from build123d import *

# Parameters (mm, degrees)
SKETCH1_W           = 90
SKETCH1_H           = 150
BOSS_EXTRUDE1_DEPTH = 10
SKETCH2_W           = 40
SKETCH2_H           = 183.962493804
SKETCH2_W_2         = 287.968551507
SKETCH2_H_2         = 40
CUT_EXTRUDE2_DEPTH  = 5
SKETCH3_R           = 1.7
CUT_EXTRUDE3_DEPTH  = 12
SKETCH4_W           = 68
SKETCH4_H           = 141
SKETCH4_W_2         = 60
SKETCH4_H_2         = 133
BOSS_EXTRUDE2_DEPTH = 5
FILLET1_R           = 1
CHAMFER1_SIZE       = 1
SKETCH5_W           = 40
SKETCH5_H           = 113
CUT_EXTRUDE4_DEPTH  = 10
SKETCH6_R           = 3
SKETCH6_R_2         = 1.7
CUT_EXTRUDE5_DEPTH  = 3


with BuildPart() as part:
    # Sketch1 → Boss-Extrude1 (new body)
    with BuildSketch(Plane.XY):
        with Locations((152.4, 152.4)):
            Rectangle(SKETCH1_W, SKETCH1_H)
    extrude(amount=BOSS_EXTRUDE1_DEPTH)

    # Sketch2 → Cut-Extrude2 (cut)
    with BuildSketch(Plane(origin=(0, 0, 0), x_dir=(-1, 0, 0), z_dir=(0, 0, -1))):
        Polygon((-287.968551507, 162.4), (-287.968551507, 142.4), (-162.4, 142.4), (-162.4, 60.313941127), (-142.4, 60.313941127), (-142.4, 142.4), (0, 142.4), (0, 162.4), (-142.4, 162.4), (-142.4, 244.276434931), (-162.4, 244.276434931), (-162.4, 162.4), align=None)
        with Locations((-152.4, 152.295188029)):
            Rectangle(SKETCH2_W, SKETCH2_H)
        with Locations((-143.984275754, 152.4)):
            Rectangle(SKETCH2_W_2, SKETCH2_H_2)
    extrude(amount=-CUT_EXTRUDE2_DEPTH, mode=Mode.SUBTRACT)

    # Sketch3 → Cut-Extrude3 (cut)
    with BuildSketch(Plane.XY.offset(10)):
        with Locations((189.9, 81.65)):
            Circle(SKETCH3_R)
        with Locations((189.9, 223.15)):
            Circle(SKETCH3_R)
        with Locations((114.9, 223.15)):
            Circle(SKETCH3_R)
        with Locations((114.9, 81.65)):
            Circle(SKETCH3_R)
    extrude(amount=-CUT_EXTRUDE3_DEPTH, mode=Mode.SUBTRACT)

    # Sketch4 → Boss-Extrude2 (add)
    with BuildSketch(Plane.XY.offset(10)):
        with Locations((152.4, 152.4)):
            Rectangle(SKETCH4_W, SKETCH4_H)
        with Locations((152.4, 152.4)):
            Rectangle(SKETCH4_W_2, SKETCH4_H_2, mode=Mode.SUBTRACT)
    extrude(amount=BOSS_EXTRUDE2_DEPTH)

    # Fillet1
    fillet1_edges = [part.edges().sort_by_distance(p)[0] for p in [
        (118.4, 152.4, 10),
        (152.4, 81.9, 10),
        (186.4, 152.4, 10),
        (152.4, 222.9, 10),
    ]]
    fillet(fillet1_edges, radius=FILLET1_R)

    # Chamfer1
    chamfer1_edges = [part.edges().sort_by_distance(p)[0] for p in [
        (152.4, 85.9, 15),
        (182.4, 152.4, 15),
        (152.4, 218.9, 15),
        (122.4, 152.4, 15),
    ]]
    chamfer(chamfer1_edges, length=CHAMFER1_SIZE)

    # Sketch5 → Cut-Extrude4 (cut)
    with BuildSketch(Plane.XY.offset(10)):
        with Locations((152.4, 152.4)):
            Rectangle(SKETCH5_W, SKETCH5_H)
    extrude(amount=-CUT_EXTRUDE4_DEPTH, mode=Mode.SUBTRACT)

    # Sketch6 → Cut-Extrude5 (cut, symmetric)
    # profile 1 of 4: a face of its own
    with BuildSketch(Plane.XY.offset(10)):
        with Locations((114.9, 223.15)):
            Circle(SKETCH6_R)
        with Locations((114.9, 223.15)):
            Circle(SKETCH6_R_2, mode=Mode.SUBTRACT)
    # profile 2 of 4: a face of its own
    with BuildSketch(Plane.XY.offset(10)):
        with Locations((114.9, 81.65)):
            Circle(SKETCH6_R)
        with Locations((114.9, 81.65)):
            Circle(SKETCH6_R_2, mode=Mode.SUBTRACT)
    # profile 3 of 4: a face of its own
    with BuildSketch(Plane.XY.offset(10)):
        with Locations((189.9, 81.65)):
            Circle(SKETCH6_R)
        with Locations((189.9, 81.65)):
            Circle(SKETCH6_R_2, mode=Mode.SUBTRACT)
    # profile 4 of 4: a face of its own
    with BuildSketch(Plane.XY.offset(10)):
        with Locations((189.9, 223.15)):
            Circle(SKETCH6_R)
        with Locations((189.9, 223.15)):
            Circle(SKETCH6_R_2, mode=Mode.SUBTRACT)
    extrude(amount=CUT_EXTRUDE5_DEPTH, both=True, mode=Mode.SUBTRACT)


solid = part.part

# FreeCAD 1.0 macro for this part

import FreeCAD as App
import Part
import Sketcher
Q = App.Units.Quantity


def edges_at(feature, points):
    """Names of the edges that pass closest to the given points."""
    edges = feature.Shape.Edges
    near = lambda p: min(range(len(edges)), key=lambda i: edges[i].distToShape(Part.Vertex(*p))[0])
    return sorted({f"Edge{near(p) + 1}" for p in points})

doc = App.newDocument("Part")
body = doc.addObject("PartDesign::Body", "Body")

# Sketch on XY plane
sketch1 = body.newObject("Sketcher::SketchObject", "Sketch")
sketch1.AttachmentSupport = (doc.getObject("XY_Plane"), [""])
sketch1.MapMode = "FlatFace"
sketch1.addGeometry([
    Part.LineSegment(App.Vector(107, 227, 0), App.Vector(107, 77, 0)),
    Part.LineSegment(App.Vector(107, 77, 0), App.Vector(197, 77, 0)),
    Part.LineSegment(App.Vector(197, 77, 0), App.Vector(197, 227, 0)),
    Part.LineSegment(App.Vector(197, 227, 0), App.Vector(107, 227, 0)),
], False)
sketch1.addConstraint([
    Sketcher.Constraint("Coincident", 0, 2, 1, 1),
    Sketcher.Constraint("Coincident", 1, 2, 2, 1),
    Sketcher.Constraint("Coincident", 2, 2, 3, 1),
    Sketcher.Constraint("Coincident", 3, 2, 0, 1),
    Sketcher.Constraint("Vertical", 0),
    Sketcher.Constraint("Horizontal", 1),
    Sketcher.Constraint("Vertical", 2),
    Sketcher.Constraint("Horizontal", 3),
    Sketcher.Constraint("DistanceX", 1, 1, 1, 2, Q("90 mm")),
    Sketcher.Constraint("DistanceY", 0, 2, 0, 1, Q("150 mm")),
    Sketcher.Constraint("DistanceX", -1, 1, 0, 2, Q("107.4 mm")),
    Sketcher.Constraint("DistanceY", -1, 1, 0, 2, Q("77.4 mm")),
])
pad1 = body.newObject("PartDesign::Pad", "Pad")
pad1.Profile = sketch1
pad1.Length = 10

# Sketch on XY plane
sketch2 = body.newObject("Sketcher::SketchObject", "Sketch001")
sketch2.AttachmentSupport = (doc.getObject("XY_Plane"), [""])
sketch2.MapMode = "FlatFace"
sketch2.addGeometry([
    Part.LineSegment(App.Vector(0, 142, 0), App.Vector(0, 172, 0)),  # 0
    Part.LineSegment(App.Vector(0, 172, 0), App.Vector(132, 172, 0)),  # 1
    Part.LineSegment(App.Vector(132, 172, 0), App.Vector(132, 244, 0)),  # 2
    Part.LineSegment(App.Vector(132, 244, 0), App.Vector(172, 244, 0)),  # 3
    Part.LineSegment(App.Vector(172, 244, 0), App.Vector(172, 172, 0)),  # 4
    Part.LineSegment(App.Vector(172, 172, 0), App.Vector(288, 172, 0)),  # 5
    Part.LineSegment(App.Vector(288, 172, 0), App.Vector(288, 162, 0)),  # 6
    Part.LineSegment(App.Vector(288, 162, 0), App.Vector(288, 142, 0)),  # 7
    Part.LineSegment(App.Vector(288, 142, 0), App.Vector(288, 132, 0)),  # 8
    Part.LineSegment(App.Vector(288, 132, 0), App.Vector(172, 132, 0)),  # 9
    Part.LineSegment(App.Vector(172, 132, 0), App.Vector(172, 60, 0)),  # 10
    Part.LineSegment(App.Vector(172, 60, 0), App.Vector(132, 60, 0)),  # 11
    Part.LineSegment(App.Vector(132, 60, 0), App.Vector(132, 132, 0)),  # 12
    Part.LineSegment(App.Vector(132, 132, 0), App.Vector(0, 132, 0)),  # 13
    Part.LineSegment(App.Vector(0, 132, 0), App.Vector(0, 142, 0)),  # 14
], False)
sketch2.addConstraint([
    Sketcher.Constraint("Coincident", 0, 2, 1, 1),
    Sketcher.Constraint("Coincident", 1, 2, 2, 1),
    Sketcher.Constraint("Coincident", 2, 2, 3, 1),
    Sketcher.Constraint("Coincident", 3, 2, 4, 1),
    Sketcher.Constraint("Coincident", 4, 2, 5, 1),
    Sketcher.Constraint("Coincident", 5, 2, 6, 1),
    Sketcher.Constraint("Coincident", 6, 2, 7, 1),
    Sketcher.Constraint("Coincident", 7, 2, 8, 1),
    Sketcher.Constraint("Coincident", 8, 2, 9, 1),
    Sketcher.Constraint("Coincident", 9, 2, 10, 1),
    Sketcher.Constraint("Coincident", 10, 2, 11, 1),
    Sketcher.Constraint("Coincident", 11, 2, 12, 1),
    Sketcher.Constraint("Coincident", 12, 2, 13, 1),
    Sketcher.Constraint("Coincident", 13, 2, 14, 1),
    Sketcher.Constraint("Coincident", 14, 2, 0, 1),
    Sketcher.Constraint("Vertical", 0),
    Sketcher.Constraint("Horizontal", 1),
    Sketcher.Constraint("Vertical", 2),
    Sketcher.Constraint("Horizontal", 3),
    Sketcher.Constraint("Vertical", 4),
    Sketcher.Constraint("Horizontal", 5),
    Sketcher.Constraint("Vertical", 6),
    Sketcher.Constraint("Vertical", 7),
    Sketcher.Constraint("Vertical", 8),
    Sketcher.Constraint("Horizontal", 9),
    Sketcher.Constraint("Vertical", 10),
    Sketcher.Constraint("Horizontal", 11),
    Sketcher.Constraint("Vertical", 12),
    Sketcher.Constraint("Horizontal", 13),
    Sketcher.Constraint("Vertical", 14),
    Sketcher.Constraint("PointOnObject", 0, 2, -2),
    Sketcher.Constraint("Horizontal", 1, 2, 4, 2),
    Sketcher.Constraint("Horizontal", 9, 2, 12, 2),
    Sketcher.Constraint("Horizontal", 7, 2, 14, 2),
    Sketcher.Constraint("Vertical", 4, 2, 9, 2),
    Sketcher.Constraint("Vertical", 2, 2, 11, 2),
    Sketcher.Constraint("Equal", 6, 8),
    Sketcher.Constraint("DistanceX", 3, 1, 3, 2, Q("40 mm")),
    Sketcher.Constraint("DistanceY", 0, 1, 0, 2, Q("30 mm")),
    Sketcher.Constraint("DistanceY", 6, 2, 6, 1, Q("10 mm")),
    Sketcher.Constraint("DistanceX", 1, 1, 1, 2, Q("132.4 mm")),
    Sketcher.Constraint("DistanceY", -1, 1, 0, 2, Q("172.4 mm")),
    Sketcher.Constraint("DistanceX", 5, 1, 5, 2, Q("115.568552 mm")),
    Sketcher.Constraint("DistanceY", 10, 2, 10, 1, Q("72.086059 mm")),
    Sketcher.Constraint("DistanceY", 2, 1, 2, 2, Q("71.876435 mm")),
])
pocket1 = body.newObject("PartDesign::Pocket", "Pocket")
pocket1.Profile = sketch2
pocket1.Length = 5
pocket1.Reversed = True

# Sketch on XY plane
sketch3 = body.newObject("Sketcher::SketchObject", "Sketch002")
sketch3.AttachmentSupport = (doc.getObject("XY_Plane"), [""])
sketch3.MapMode = "FlatFace"
sketch3.AttachmentOffset = App.Placement(App.Vector(0, 0, 10), App.Rotation())
sketch3.addGeometry([
    Part.Circle(App.Vector(189.9, 81.7, 0), App.Vector(0, 0, 1), 1.7),
    Part.Circle(App.Vector(189.9, 223.2, 0), App.Vector(0, 0, 1), 1.7),
    Part.Circle(App.Vector(114.9, 223.2, 0), App.Vector(0, 0, 1), 1.7),
    Part.Circle(App.Vector(114.9, 81.7, 0), App.Vector(0, 0, 1), 1.7),
], False)
sketch3.addConstraint([
    Sketcher.Constraint("Equal", 0, 1),
    Sketcher.Constraint("Equal", 1, 2),
    Sketcher.Constraint("Equal", 2, 3),
    Sketcher.Constraint("Horizontal", 1, 3, 2, 3),
    Sketcher.Constraint("Horizontal", 0, 3, 3, 3),
    Sketcher.Constraint("Vertical", 0, 3, 1, 3),
    Sketcher.Constraint("Vertical", 2, 3, 3, 3),
    Sketcher.Constraint("Diameter", 0, Q("3.4 mm")),
    Sketcher.Constraint("DistanceX", 2, 3, 1, 3, Q("75 mm")),
    Sketcher.Constraint("DistanceX", -1, 1, 0, 3, Q("189.9 mm")),
    Sketcher.Constraint("DistanceY", 0, 3, 1, 3, Q("141.5 mm")),
    Sketcher.Constraint("DistanceY", -1, 1, 0, 3, Q("81.65 mm")),
])
pocket2 = body.newObject("PartDesign::Pocket", "Pocket001")
pocket2.Profile = sketch3
pocket2.Length = 12

# Sketch on XY plane
sketch4 = body.newObject("Sketcher::SketchObject", "Sketch003")
sketch4.AttachmentSupport = (doc.getObject("XY_Plane"), [""])
sketch4.MapMode = "FlatFace"
sketch4.AttachmentOffset = App.Placement(App.Vector(0, 0, 10), App.Rotation())
sketch4.addGeometry([
    Part.LineSegment(App.Vector(118, 223, 0), App.Vector(118, 82, 0)),  # 0
    Part.LineSegment(App.Vector(118, 82, 0), App.Vector(186, 82, 0)),  # 1
    Part.LineSegment(App.Vector(186, 82, 0), App.Vector(186, 223, 0)),  # 2
    Part.LineSegment(App.Vector(186, 223, 0), App.Vector(118, 223, 0)),  # 3
    Part.LineSegment(App.Vector(182, 86, 0), App.Vector(122, 86, 0)),  # 4
    Part.LineSegment(App.Vector(122, 86, 0), App.Vector(122, 219, 0)),  # 5
    Part.LineSegment(App.Vector(122, 219, 0), App.Vector(182, 219, 0)),  # 6
    Part.LineSegment(App.Vector(182, 219, 0), App.Vector(182, 86, 0)),  # 7
], False)
sketch4.addConstraint([
    Sketcher.Constraint("Coincident", 0, 2, 1, 1),
    Sketcher.Constraint("Coincident", 1, 2, 2, 1),
    Sketcher.Constraint("Coincident", 2, 2, 3, 1),
    Sketcher.Constraint("Coincident", 3, 2, 0, 1),
    Sketcher.Constraint("Coincident", 4, 2, 5, 1),
    Sketcher.Constraint("Coincident", 5, 2, 6, 1),
    Sketcher.Constraint("Coincident", 6, 2, 7, 1),
    Sketcher.Constraint("Coincident", 7, 2, 4, 1),
    Sketcher.Constraint("Vertical", 0),
    Sketcher.Constraint("Horizontal", 1),
    Sketcher.Constraint("Vertical", 2),
    Sketcher.Constraint("Horizontal", 3),
    Sketcher.Constraint("Horizontal", 4),
    Sketcher.Constraint("Vertical", 5),
    Sketcher.Constraint("Horizontal", 6),
    Sketcher.Constraint("Vertical", 7),
    Sketcher.Constraint("DistanceX", 1, 1, 1, 2, Q("68 mm")),
    Sketcher.Constraint("DistanceX", 4, 2, 4, 1, Q("60 mm")),
    Sketcher.Constraint("DistanceY", 0, 2, 0, 1, Q("141 mm")),
    Sketcher.Constraint("DistanceY", 5, 1, 5, 2, Q("133 mm")),
    Sketcher.Constraint("DistanceX", 0, 2, 4, 2, Q("4 mm")),
    Sketcher.Constraint("DistanceY", 0, 2, 4, 2, Q("4 mm")),
    Sketcher.Constraint("DistanceX", -1, 1, 0, 2, Q("118.4 mm")),
    Sketcher.Constraint("DistanceY", -1, 1, 0, 2, Q("81.9 mm")),
])
pad2 = body.newObject("PartDesign::Pad", "Pad001")
pad2.Profile = sketch4
pad2.Length = 5
doc.recompute()

fillet = body.newObject("PartDesign::Fillet", "Fillet")
fillet.Base = (pad2, edges_at(pad2, [
    (118.4, 152.4, 10),
    (152.4, 81.9, 10),
    (186.4, 152.4, 10),
    (152.4, 222.9, 10),
]))
fillet.Radius = 1
doc.recompute()

chamfer = body.newObject("PartDesign::Chamfer", "Chamfer")
chamfer.Base = (fillet, edges_at(fillet, [
    (152.4, 85.9, 15),
    (182.4, 152.4, 15),
    (152.4, 218.9, 15),
    (122.4, 152.4, 15),
]))
chamfer.Size = 1

# Sketch on XY plane
sketch5 = body.newObject("Sketcher::SketchObject", "Sketch004")
sketch5.AttachmentSupport = (doc.getObject("XY_Plane"), [""])
sketch5.MapMode = "FlatFace"
sketch5.AttachmentOffset = App.Placement(App.Vector(0, 0, 10), App.Rotation())
sketch5.addGeometry([
    Part.LineSegment(App.Vector(132, 209, 0), App.Vector(132, 96, 0)),
    Part.LineSegment(App.Vector(132, 96, 0), App.Vector(172, 96, 0)),
    Part.LineSegment(App.Vector(172, 96, 0), App.Vector(172, 209, 0)),
    Part.LineSegment(App.Vector(172, 209, 0), App.Vector(132, 209, 0)),
], False)
sketch5.addConstraint([
    Sketcher.Constraint("Coincident", 0, 2, 1, 1),
    Sketcher.Constraint("Coincident", 1, 2, 2, 1),
    Sketcher.Constraint("Coincident", 2, 2, 3, 1),
    Sketcher.Constraint("Coincident", 3, 2, 0, 1),
    Sketcher.Constraint("Vertical", 0),
    Sketcher.Constraint("Horizontal", 1),
    Sketcher.Constraint("Vertical", 2),
    Sketcher.Constraint("Horizontal", 3),
    Sketcher.Constraint("DistanceX", 1, 1, 1, 2, Q("40 mm")),
    Sketcher.Constraint("DistanceY", 0, 2, 0, 1, Q("113 mm")),
    Sketcher.Constraint("DistanceX", -1, 1, 0, 2, Q("132.4 mm")),
    Sketcher.Constraint("DistanceY", -1, 1, 0, 2, Q("95.9 mm")),
])
pocket3 = body.newObject("PartDesign::Pocket", "Pocket002")
pocket3.Profile = sketch5
pocket3.Length = 10

# Sketch on XY plane
sketch6 = body.newObject("Sketcher::SketchObject", "Sketch005")
sketch6.AttachmentSupport = (doc.getObject("XY_Plane"), [""])
sketch6.MapMode = "FlatFace"
sketch6.AttachmentOffset = App.Placement(App.Vector(0, 0, 10), App.Rotation())
sketch6.addGeometry([
    Part.Circle(App.Vector(114.9, 223.2, 0), App.Vector(0, 0, 1), 3),  # 0
    Part.Circle(App.Vector(114.9, 223.2, 0), App.Vector(0, 0, 1), 1.7),  # 1
    Part.Circle(App.Vector(114.9, 81.7, 0), App.Vector(0, 0, 1), 3),  # 2
    Part.Circle(App.Vector(114.9, 81.7, 0), App.Vector(0, 0, 1), 1.7),  # 3
    Part.Circle(App.Vector(189.9, 81.7, 0), App.Vector(0, 0, 1), 3),  # 4
    Part.Circle(App.Vector(189.9, 81.7, 0), App.Vector(0, 0, 1), 1.7),  # 5
    Part.Circle(App.Vector(189.9, 223.2, 0), App.Vector(0, 0, 1), 3),  # 6
    Part.Circle(App.Vector(189.9, 223.2, 0), App.Vector(0, 0, 1), 1.7),  # 7
], False)
sketch6.addConstraint([
    Sketcher.Constraint("Coincident", 1, 3, 0, 3),
    Sketcher.Constraint("Coincident", 3, 3, 2, 3),
    Sketcher.Constraint("Coincident", 5, 3, 4, 3),
    Sketcher.Constraint("Coincident", 7, 3, 6, 3),
    Sketcher.Constraint("Equal", 0, 2),
    Sketcher.Constraint("Equal", 1, 3),
    Sketcher.Constraint("Equal", 2, 4),
    Sketcher.Constraint("Equal", 3, 5),
    Sketcher.Constraint("Equal", 4, 6),
    Sketcher.Constraint("Equal", 5, 7),
    Sketcher.Constraint("Horizontal", 3, 3, 4, 3),
    Sketcher.Constraint("Horizontal", 1, 3, 6, 3),
    Sketcher.Constraint("Vertical", 1, 3, 2, 3),
    Sketcher.Constraint("Vertical", 5, 3, 6, 3),
    Sketcher.Constraint("Diameter", 0, Q("6 mm")),
    Sketcher.Constraint("Diameter", 1, Q("3.4 mm")),
    Sketcher.Constraint("DistanceX", 2, 3, 4, 3, Q("75 mm")),
    Sketcher.Constraint("DistanceX", -1, 1, 0, 3, Q("114.9 mm")),
    Sketcher.Constraint("DistanceY", 2, 3, 0, 3, Q("141.5 mm")),
    Sketcher.Constraint("DistanceY", -1, 1, 0, 3, Q("223.15 mm")),
])
pocket4 = body.newObject("PartDesign::Pocket", "Pocket003")
pocket4.Profile = sketch6
pocket4.Length = 6
pocket4.Midplane = True

doc.recompute()
